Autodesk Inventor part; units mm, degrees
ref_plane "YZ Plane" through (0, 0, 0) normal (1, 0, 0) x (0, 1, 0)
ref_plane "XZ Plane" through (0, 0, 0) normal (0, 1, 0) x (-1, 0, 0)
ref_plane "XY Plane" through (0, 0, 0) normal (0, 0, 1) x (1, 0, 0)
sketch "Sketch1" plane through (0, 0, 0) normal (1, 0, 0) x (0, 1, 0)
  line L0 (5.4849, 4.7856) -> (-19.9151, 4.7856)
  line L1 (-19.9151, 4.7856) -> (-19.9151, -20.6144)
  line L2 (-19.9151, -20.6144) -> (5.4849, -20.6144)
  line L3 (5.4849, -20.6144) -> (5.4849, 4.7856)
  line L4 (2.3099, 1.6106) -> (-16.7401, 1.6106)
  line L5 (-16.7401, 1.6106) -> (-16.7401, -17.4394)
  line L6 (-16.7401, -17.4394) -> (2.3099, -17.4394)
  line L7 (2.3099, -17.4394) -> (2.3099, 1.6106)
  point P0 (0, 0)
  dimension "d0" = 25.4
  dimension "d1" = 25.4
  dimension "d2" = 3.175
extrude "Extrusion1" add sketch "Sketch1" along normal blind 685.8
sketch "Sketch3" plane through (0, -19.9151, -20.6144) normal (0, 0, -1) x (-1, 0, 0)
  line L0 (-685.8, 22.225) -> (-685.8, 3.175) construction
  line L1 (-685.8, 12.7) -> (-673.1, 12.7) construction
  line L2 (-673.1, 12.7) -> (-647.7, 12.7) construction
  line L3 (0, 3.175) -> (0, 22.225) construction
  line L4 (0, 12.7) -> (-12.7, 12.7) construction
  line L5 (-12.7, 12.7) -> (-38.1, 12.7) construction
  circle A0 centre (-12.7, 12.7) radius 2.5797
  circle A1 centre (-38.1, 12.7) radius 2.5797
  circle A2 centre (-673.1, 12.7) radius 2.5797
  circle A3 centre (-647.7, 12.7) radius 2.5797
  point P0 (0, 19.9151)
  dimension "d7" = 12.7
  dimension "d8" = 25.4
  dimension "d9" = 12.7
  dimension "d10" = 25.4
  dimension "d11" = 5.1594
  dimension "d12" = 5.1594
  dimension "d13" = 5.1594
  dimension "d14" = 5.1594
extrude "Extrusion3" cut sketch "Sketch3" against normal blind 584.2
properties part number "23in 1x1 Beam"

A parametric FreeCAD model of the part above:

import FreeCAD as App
import Part
import Sketcher
Q = App.Units.Quantity


def add_polygon(sketch, points):
    """Adds a closed chain of lines whose ends are joined by coincident constraints."""
    first, n = sketch.GeometryCount, len(points)
    for a, b in zip(points, points[1:] + points[:1]):
        sketch.addGeometry(Part.LineSegment(App.Vector(*a, 0), App.Vector(*b, 0)), False)
    for i in range(n):
        sketch.addConstraint(Sketcher.Constraint("Coincident", first + i, 2, first + (i + 1) % n, 1))

doc = App.newDocument("Part")
params = doc.addObject("Spreadsheet::Sheet", "Params")
for row, (alias, value) in enumerate([
    ("sketch1_width", "1 in"),
    ("pad1_length", "27 in"),
    ("sketch2_diameter", "0.203126 in"),
    ("pocket1_length", "23 in"),
], start=1):
    params.set(f"A{row}", alias)
    params.set(f"B{row}", "=" + value)
    params.setAlias(f"B{row}", alias)

body = doc.addObject("PartDesign::Body", "Body")

sketch1 = doc.addObject("Sketcher::SketchObject", "Sketch")
body.addObject(sketch1)
sketch1.AttachmentSupport = (doc.YZ_Plane, [""])
sketch1.MapMode = "FlatFace"
add_polygon(sketch1, [(5, -21), (5, 5), (-20, 5), (-20, -21)])
add_polygon(sketch1, [(-17, 2), (2, 2), (2, -17), (-17, -17)])
sketch1.addConstraint(Sketcher.Constraint("Vertical", 0))
sketch1.addConstraint(Sketcher.Constraint("Horizontal", 1))
sketch1.addConstraint(Sketcher.Constraint("Vertical", 2))
sketch1.addConstraint(Sketcher.Constraint("Horizontal", 3))
sketch1.addConstraint(Sketcher.Constraint("Horizontal", 4))
sketch1.addConstraint(Sketcher.Constraint("Vertical", 5))
sketch1.addConstraint(Sketcher.Constraint("Horizontal", 6))
sketch1.addConstraint(Sketcher.Constraint("Vertical", 7))
sketch1.addConstraint(Sketcher.Constraint("Equal", 3, 0))
sketch1.addConstraint(Sketcher.Constraint("Equal", 6, 5))
sketch1.addConstraint(Sketcher.Constraint("DistanceX", 1, 2, 1, 1, Q("1 in")))
sketch1.addConstraint(Sketcher.Constraint("DistanceX", 4, 2, 0, 2, Q("0.125 in")))
sketch1.addConstraint(Sketcher.Constraint("DistanceY", 4, 2, 0, 2, Q("0.125 in")))
sketch1.addConstraint(Sketcher.Constraint("DistanceY", 3, 2, 5, 2, Q("0.125 in")))
sketch1.addConstraint(Sketcher.Constraint("DistanceY", -1, 1, 0, 2, Q("0.1884 in")))
sketch1.addConstraint(Sketcher.Constraint("DistanceX", -1, 1, 0, 2, 5.485))
sketch1.setExpression("Constraints[18]", "Params.sketch1_width")
pad1 = doc.addObject("PartDesign::Pad", "Pad")
body.addObject(pad1)
pad1.Profile = sketch1
pad1.setExpression("Length", "Params.pad1_length")

sketch2 = doc.addObject("Sketcher::SketchObject", "Sketch001")
body.addObject(sketch2)
sketch2.AttachmentSupport = (doc.XY_Plane, [""])
sketch2.MapMode = "FlatFace"
sketch2.AttachmentOffset = App.Placement(App.Vector(0, 0, -0.8115906 * 25.4), App.Rotation())
sketch2.addGeometry(Part.Circle(App.Vector(12.7, -7.2, 0), App.Vector(0, 0, 1), 2.6), False)
sketch2.addGeometry(Part.Circle(App.Vector(38.1, -7.2, 0), App.Vector(0, 0, 1), 2.6), False)
sketch2.addGeometry(Part.Circle(App.Vector(673.1, -7.2, 0), App.Vector(0, 0, 1), 2.6), False)
sketch2.addGeometry(Part.Circle(App.Vector(647.7, -7.2, 0), App.Vector(0, 0, 1), 2.6), False)
sketch2.addConstraint(Sketcher.Constraint("Equal", 0, 1))
sketch2.addConstraint(Sketcher.Constraint("Equal", 1, 2))
sketch2.addConstraint(Sketcher.Constraint("Equal", 2, 3))
sketch2.addConstraint(Sketcher.Constraint("Horizontal", 0, 3, 1, 3))
sketch2.addConstraint(Sketcher.Constraint("Horizontal", 1, 3, 2, 3))
sketch2.addConstraint(Sketcher.Constraint("Horizontal", 2, 3, 3, 3))
sketch2.addConstraint(Sketcher.Constraint("Diameter", 0, Q("0.203126 in")))
sketch2.addConstraint(Sketcher.Constraint("DistanceX", 0, 3, 1, 3, Q("1 in")))
sketch2.addConstraint(Sketcher.Constraint("DistanceX", 3, 3, 2, 3, Q("1 in")))
sketch2.addConstraint(Sketcher.Constraint("DistanceX", -1, 1, 0, 3, Q("0.5 in")))
sketch2.addConstraint(Sketcher.Constraint("DistanceX", 1, 3, 2, 3, Q("25 in")))
sketch2.addConstraint(Sketcher.Constraint("DistanceY", 0, 3, -1, 1, 7.215))
sketch2.setExpression("Constraints[6]", "Params.sketch2_diameter")
pocket1 = doc.addObject("PartDesign::Pocket", "Pocket")
body.addObject(pocket1)
pocket1.Profile = sketch2
pocket1.setExpression("Length", "Params.pocket1_length")
pocket1.Reversed = True

doc.recompute()
